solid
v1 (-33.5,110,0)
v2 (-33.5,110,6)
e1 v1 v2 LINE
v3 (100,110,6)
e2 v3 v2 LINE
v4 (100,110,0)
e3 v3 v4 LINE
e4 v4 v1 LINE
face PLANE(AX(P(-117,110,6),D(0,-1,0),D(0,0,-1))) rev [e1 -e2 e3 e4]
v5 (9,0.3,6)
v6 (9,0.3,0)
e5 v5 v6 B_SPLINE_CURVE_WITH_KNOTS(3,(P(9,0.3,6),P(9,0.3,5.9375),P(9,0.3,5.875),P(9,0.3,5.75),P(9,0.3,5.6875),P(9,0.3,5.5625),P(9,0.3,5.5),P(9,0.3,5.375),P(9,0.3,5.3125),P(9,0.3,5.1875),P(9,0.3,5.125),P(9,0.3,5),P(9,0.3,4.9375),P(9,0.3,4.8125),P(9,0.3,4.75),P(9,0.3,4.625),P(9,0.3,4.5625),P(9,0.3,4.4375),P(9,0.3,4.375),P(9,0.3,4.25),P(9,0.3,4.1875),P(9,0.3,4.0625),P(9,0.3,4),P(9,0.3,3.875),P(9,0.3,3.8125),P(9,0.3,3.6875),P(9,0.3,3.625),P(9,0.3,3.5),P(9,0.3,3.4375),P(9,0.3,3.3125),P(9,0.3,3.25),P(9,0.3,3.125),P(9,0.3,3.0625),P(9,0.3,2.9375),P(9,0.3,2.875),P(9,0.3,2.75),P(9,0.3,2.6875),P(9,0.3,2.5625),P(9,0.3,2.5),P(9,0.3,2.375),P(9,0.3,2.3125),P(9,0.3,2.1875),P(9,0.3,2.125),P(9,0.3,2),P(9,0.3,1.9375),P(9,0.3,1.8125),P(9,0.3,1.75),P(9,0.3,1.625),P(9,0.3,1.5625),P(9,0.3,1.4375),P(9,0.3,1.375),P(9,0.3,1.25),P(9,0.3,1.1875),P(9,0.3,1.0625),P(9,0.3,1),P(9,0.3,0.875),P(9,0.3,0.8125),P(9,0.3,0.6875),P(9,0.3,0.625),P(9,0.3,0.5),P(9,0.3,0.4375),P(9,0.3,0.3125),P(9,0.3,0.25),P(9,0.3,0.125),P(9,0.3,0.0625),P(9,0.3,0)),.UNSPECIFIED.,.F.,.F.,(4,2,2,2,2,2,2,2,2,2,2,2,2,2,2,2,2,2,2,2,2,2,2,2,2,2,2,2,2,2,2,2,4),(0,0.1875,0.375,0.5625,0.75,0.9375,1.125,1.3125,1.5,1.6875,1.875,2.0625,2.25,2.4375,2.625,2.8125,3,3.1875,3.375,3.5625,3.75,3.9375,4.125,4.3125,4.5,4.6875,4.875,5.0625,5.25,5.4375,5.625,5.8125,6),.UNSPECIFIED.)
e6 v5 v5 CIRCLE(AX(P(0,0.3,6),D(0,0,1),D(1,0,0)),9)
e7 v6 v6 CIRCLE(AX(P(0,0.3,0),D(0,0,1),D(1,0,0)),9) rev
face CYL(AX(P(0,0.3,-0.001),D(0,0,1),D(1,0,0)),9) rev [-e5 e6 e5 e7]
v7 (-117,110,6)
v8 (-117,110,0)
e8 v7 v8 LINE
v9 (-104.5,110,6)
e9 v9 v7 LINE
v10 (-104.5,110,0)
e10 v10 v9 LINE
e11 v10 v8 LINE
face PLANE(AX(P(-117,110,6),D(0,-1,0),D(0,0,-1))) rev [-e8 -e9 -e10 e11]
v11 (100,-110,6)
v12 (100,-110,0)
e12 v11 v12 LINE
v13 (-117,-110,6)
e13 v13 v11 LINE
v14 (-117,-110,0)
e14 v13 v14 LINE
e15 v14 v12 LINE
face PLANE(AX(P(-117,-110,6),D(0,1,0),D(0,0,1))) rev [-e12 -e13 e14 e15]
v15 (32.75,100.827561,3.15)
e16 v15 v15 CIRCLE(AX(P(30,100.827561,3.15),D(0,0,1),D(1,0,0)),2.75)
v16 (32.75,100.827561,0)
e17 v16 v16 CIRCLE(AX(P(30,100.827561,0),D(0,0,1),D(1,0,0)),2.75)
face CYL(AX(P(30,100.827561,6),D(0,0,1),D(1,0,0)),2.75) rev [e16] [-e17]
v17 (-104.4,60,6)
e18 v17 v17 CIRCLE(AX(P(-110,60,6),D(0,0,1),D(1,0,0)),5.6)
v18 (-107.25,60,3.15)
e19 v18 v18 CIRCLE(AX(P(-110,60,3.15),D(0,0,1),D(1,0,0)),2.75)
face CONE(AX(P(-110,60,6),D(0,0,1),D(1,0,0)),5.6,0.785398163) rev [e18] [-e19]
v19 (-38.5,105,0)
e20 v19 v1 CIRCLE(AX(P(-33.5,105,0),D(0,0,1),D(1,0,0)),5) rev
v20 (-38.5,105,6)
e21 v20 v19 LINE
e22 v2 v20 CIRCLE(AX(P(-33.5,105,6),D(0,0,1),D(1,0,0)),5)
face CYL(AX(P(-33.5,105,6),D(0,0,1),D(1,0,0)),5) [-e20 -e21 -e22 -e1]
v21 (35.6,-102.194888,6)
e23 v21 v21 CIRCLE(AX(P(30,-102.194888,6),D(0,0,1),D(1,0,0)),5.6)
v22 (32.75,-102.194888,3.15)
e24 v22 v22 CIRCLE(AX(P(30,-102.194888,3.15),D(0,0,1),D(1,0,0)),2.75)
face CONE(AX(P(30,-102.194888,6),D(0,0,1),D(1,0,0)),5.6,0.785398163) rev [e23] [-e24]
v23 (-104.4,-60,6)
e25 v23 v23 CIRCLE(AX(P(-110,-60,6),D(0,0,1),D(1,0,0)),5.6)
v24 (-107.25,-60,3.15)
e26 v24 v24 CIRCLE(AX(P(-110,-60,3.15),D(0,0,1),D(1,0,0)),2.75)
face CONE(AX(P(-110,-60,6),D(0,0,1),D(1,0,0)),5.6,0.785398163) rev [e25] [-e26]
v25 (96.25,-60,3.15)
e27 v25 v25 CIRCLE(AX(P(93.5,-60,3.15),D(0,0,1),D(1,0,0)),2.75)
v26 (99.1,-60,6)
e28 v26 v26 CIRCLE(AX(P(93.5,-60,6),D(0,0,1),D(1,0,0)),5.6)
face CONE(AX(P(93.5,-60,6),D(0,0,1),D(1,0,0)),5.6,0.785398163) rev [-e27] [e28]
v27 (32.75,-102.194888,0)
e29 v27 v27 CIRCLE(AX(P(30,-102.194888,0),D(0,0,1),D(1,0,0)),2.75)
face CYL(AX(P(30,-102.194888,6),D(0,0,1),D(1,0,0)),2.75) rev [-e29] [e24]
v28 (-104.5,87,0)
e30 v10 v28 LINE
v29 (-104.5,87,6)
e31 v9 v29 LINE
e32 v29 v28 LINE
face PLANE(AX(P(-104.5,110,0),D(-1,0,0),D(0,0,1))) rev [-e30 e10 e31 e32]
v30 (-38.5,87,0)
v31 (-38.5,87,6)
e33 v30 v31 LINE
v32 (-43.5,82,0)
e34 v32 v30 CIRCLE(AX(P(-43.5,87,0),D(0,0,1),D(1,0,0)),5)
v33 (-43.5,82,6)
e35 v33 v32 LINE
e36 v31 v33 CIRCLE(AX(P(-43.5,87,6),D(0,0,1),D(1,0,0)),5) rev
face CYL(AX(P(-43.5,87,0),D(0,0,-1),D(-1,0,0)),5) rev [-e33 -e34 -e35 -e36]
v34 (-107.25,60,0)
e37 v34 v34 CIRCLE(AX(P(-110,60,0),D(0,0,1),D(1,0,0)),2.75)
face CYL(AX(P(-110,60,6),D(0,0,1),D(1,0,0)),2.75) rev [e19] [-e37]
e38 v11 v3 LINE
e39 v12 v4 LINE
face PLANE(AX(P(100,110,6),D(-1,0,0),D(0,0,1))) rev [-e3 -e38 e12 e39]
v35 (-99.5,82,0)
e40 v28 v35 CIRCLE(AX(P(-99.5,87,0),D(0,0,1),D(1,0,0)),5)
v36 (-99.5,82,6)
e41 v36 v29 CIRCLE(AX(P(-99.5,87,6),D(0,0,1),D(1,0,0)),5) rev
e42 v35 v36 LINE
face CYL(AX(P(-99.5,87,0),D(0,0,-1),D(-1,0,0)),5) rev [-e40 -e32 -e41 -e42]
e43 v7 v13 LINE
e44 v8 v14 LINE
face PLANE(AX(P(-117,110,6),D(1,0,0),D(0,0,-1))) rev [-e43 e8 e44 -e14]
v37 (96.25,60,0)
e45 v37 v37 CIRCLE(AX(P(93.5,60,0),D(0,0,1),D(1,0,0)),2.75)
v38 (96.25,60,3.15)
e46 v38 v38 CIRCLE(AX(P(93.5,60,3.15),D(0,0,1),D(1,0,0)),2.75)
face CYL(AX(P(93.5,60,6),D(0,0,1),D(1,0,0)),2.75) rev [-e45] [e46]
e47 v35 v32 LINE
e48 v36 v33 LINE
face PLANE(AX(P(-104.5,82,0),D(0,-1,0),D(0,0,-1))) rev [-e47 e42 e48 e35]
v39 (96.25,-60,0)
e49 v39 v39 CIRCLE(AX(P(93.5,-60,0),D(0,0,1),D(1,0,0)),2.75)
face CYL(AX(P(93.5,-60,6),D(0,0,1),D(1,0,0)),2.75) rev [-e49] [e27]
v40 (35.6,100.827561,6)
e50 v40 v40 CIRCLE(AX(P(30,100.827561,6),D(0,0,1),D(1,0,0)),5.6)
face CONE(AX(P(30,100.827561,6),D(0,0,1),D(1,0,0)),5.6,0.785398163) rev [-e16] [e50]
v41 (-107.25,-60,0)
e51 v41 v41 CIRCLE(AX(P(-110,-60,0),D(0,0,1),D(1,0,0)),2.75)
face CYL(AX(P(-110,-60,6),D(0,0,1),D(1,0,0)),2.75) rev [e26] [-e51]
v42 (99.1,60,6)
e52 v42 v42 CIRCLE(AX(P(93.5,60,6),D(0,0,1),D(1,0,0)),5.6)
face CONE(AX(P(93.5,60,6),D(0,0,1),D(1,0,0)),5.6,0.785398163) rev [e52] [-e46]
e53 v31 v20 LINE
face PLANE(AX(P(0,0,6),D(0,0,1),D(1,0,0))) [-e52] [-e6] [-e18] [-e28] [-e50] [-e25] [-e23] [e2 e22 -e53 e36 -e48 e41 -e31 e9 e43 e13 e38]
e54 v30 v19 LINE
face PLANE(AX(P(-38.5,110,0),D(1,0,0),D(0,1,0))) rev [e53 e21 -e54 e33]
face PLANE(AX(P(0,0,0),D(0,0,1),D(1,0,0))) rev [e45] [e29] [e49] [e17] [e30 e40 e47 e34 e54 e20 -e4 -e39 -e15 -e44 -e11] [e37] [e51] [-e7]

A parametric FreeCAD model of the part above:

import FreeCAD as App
import Part
import Sketcher


def edges_at(feature, points):
    """Names of the edges that pass closest to the given points."""
    edges = feature.Shape.Edges
    near = lambda p: min(range(len(edges)), key=lambda i: edges[i].distToShape(Part.Vertex(*p))[0])
    return sorted({f"Edge{near(p) + 1}" for p in points})

doc = App.newDocument("Part")
body = doc.addObject("PartDesign::Body", "Body")

sketch1 = body.newObject("Sketcher::SketchObject", "Sketch")
sketch1.AttachmentSupport = (doc.getObject("XY_Plane"), [""])
sketch1.MapMode = "FlatFace"
sketch1.addGeometry([
    Part.LineSegment(App.Vector(-117, 110, 0), App.Vector(-117, -110, 0)),
    Part.LineSegment(App.Vector(-117, -110, 0), App.Vector(100, -110, 0)),
    Part.LineSegment(App.Vector(100, -110, 0), App.Vector(100, 110, 0)),
    Part.LineSegment(App.Vector(100, 110, 0), App.Vector(-117, 110, 0)),
], False)
sketch1.addConstraint([
    Sketcher.Constraint("Coincident", 0, 2, 1, 1),
    Sketcher.Constraint("Coincident", 1, 2, 2, 1),
    Sketcher.Constraint("Coincident", 2, 2, 3, 1),
    Sketcher.Constraint("Coincident", 3, 2, 0, 1),
    Sketcher.Constraint("Vertical", 0),
    Sketcher.Constraint("Horizontal", 1),
    Sketcher.Constraint("Vertical", 2),
    Sketcher.Constraint("Horizontal", 3),
    Sketcher.Constraint("DistanceX", 1, 1, 1, 2, 217.0),
    Sketcher.Constraint("DistanceY", 0, 2, 0, 1, 220.0),
    Sketcher.Constraint("DistanceX", 0, 2, -1, 1, 117.0),
    Sketcher.Constraint("DistanceY", 0, 2, -1, 1, 110.0),
])
pad1 = body.newObject("PartDesign::Pad", "Pad")
pad1.Profile = sketch1
pad1.Length = 6

sketch2 = body.newObject("Sketcher::SketchObject", "Sketch001")
sketch2.AttachmentSupport = (doc.getObject("XY_Plane"), [""])
sketch2.MapMode = "FlatFace"
sketch2.AttachmentOffset = App.Placement(App.Vector(0, 0, 6), App.Rotation())
sketch2.addGeometry([
    Part.Circle(App.Vector(-110, -60, 0), App.Vector(0, 0, 1), 2.75),
    Part.Circle(App.Vector(-110, 60, 0), App.Vector(0, 0, 1), 2.75),
    Part.Circle(App.Vector(93.5, 60, 0), App.Vector(0, 0, 1), 2.75),
    Part.Circle(App.Vector(93.5, -60, 0), App.Vector(0, 0, 1), 2.75),
    Part.Circle(App.Vector(30, -102.194888, 0), App.Vector(0, 0, 1), 2.75),
    Part.Circle(App.Vector(30, 100.827561, 0), App.Vector(0, 0, 1), 2.75),
], False)
sketch2.addConstraint([
    Sketcher.Constraint("Equal", 0, 1),
    Sketcher.Constraint("Equal", 1, 2),
    Sketcher.Constraint("Equal", 2, 3),
    Sketcher.Constraint("Equal", 3, 4),
    Sketcher.Constraint("Equal", 4, 5),
    Sketcher.Constraint("Symmetric", 0, 3, 1, 3, -1),
    Sketcher.Constraint("Symmetric", 2, 3, 3, 3, -1),
    Sketcher.Constraint("Horizontal", 1, 3, 2, 3),
    Sketcher.Constraint("Vertical", 4, 3, 5, 3),
    Sketcher.Constraint("Diameter", 0, 5.5),
    Sketcher.Constraint("DistanceX", 0, 3, -1, 1, 110.0),
    Sketcher.Constraint("DistanceY", 0, 3, -1, 1, 60.0),
    Sketcher.Constraint("DistanceX", -1, 1, 4, 3, 30.0),
    Sketcher.Constraint("DistanceX", -1, 1, 2, 3, 93.5),
    Sketcher.Constraint("DistanceY", 4, 3, -1, 1, 102.194888),
    Sketcher.Constraint("DistanceY", -1, 1, 5, 3, 100.827561),
])
doc.recompute()
hole = body.newObject("PartDesign::Hole", "Hole")
hole.Profile = sketch2
hole.ThreadType = "None"
hole.Diameter = 5.5
hole.DepthType = "ThroughAll"
hole.HoleCutType = "Countersink"
hole.HoleCutDiameter = 11.2
hole.HoleCutCountersinkAngle = 90

sketch3 = body.newObject("Sketcher::SketchObject", "Sketch002")
sketch3.AttachmentSupport = (doc.getObject("XY_Plane"), [""])
sketch3.MapMode = "FlatFace"
sketch3.AttachmentOffset = App.Placement(App.Vector(0, 0, 6), App.Rotation())
sketch3.addGeometry(Part.Circle(App.Vector(0, 0.3, 0), App.Vector(0, 0, 1), 9), False)
sketch3.addConstraint([
    Sketcher.Constraint("PointOnObject", 0, 3, -2),
    Sketcher.Constraint("Diameter", 0, 18.0),
    Sketcher.Constraint("DistanceY", -1, 1, 0, 3, 0.3),
])
pocket1 = body.newObject("PartDesign::Pocket", "Pocket")
pocket1.Profile = sketch3
pocket1.Type = "UpToFirst"

sketch4 = body.newObject("Sketcher::SketchObject", "Sketch003")
sketch4.AttachmentSupport = (doc.getObject("XY_Plane"), [""])
sketch4.MapMode = "FlatFace"
sketch4.AttachmentOffset = App.Placement(App.Vector(0, 0, 6), App.Rotation())
sketch4.addGeometry([
    Part.LineSegment(App.Vector(-104.5, 110, 0), App.Vector(-104.5, 82, 0)),
    Part.LineSegment(App.Vector(-104.5, 82, 0), App.Vector(-38.5, 82, 0)),
    Part.LineSegment(App.Vector(-38.5, 82, 0), App.Vector(-38.5, 110, 0)),
    Part.LineSegment(App.Vector(-38.5, 110, 0), App.Vector(-104.5, 110, 0)),
], False)
sketch4.addConstraint([
    Sketcher.Constraint("Coincident", 0, 2, 1, 1),
    Sketcher.Constraint("Coincident", 1, 2, 2, 1),
    Sketcher.Constraint("Coincident", 2, 2, 3, 1),
    Sketcher.Constraint("Coincident", 3, 2, 0, 1),
    Sketcher.Constraint("Vertical", 0),
    Sketcher.Constraint("Horizontal", 1),
    Sketcher.Constraint("Vertical", 2),
    Sketcher.Constraint("Horizontal", 3),
    Sketcher.Constraint("DistanceX", 1, 1, 1, 2, 66.0),
    Sketcher.Constraint("DistanceY", 0, 2, 0, 1, 28.0),
    Sketcher.Constraint("DistanceY", -1, 1, 0, 2, 82.0),
    Sketcher.Constraint("DistanceX", 0, 2, -1, 1, 104.5),
])
pocket2 = body.newObject("PartDesign::Pocket", "Pocket001")
pocket2.Profile = sketch4
pocket2.Type = "ThroughAll"
doc.recompute()

fillet = body.newObject("PartDesign::Fillet", "Fillet")
fillet.Base = (pocket2, edges_at(pocket2, [(-104.5, 82, 3), (-38.5, 110, 3), (-38.5, 82, 3)]))
fillet.Radius = 5

doc.recompute()
